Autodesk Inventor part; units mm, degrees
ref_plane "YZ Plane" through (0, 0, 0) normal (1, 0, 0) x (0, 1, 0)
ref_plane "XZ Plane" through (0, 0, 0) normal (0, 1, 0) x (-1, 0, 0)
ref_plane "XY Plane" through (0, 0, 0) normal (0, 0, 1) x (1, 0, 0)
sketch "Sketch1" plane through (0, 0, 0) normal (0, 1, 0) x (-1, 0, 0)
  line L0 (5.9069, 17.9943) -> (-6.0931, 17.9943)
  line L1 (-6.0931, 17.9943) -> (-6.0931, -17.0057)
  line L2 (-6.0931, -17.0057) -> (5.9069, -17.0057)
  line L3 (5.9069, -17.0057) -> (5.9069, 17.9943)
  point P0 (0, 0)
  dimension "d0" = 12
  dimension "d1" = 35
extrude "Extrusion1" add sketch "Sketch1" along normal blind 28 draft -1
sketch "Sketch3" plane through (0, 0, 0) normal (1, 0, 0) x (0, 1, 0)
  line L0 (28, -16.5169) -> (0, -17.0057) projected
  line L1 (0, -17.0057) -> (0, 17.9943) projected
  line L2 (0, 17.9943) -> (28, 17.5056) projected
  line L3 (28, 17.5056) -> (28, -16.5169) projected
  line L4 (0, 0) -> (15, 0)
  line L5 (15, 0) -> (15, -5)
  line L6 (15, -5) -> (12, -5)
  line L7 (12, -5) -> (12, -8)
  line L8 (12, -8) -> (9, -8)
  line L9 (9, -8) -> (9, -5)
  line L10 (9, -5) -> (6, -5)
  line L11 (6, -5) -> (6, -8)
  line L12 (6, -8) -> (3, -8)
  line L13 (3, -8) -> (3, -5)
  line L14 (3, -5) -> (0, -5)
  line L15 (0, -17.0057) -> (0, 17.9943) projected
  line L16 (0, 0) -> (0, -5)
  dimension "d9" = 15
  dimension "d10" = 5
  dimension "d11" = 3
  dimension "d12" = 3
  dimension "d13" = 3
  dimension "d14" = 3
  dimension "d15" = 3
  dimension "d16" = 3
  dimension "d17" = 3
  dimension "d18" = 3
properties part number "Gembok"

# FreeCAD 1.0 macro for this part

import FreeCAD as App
import Part
import Sketcher
Q = App.Units.Quantity


def add_polygon(sketch, points):
    """Adds a closed chain of lines whose ends are joined by coincident constraints."""
    first, n = sketch.GeometryCount, len(points)
    for a, b in zip(points, points[1:] + points[:1]):
        sketch.addGeometry(Part.LineSegment(App.Vector(*a, 0), App.Vector(*b, 0)), False)
    for i in range(n):
        sketch.addConstraint(Sketcher.Constraint("Coincident", first + i, 2, first + (i + 1) % n, 1))

doc = App.newDocument("Part")
body = doc.addObject("PartDesign::Body", "Body")

sketch1 = body.newObject("Sketcher::SketchObject", "Sketch")
sketch1.AttachmentSupport = (doc.getObject("XZ_Plane"), [""])
sketch1.MapMode = "FlatFace"
add_polygon(sketch1, [(-6, -17), (-6, 18), (6, 18), (6, -17)])
sketch1.addConstraint([
    Sketcher.Constraint("Vertical", 0),
    Sketcher.Constraint("Horizontal", 1),
    Sketcher.Constraint("Vertical", 2),
    Sketcher.Constraint("Horizontal", 3),
    Sketcher.Constraint("DistanceX", 1, 1, 1, 2, Q("12 mm")),
    Sketcher.Constraint("DistanceY", 0, 1, 0, 2, Q("35 mm")),
    Sketcher.Constraint("DistanceX", 0, 2, -1, 1, Q("5.907 mm")),
    Sketcher.Constraint("DistanceY", -1, 1, 0, 2, Q("17.9943 mm")),
])
pad1 = body.newObject("PartDesign::Pad", "Pad")
pad1.Profile = sketch1
pad1.Length = 28
pad1.Reversed = True
pad1.TaperAngle = -1

doc.recompute()
